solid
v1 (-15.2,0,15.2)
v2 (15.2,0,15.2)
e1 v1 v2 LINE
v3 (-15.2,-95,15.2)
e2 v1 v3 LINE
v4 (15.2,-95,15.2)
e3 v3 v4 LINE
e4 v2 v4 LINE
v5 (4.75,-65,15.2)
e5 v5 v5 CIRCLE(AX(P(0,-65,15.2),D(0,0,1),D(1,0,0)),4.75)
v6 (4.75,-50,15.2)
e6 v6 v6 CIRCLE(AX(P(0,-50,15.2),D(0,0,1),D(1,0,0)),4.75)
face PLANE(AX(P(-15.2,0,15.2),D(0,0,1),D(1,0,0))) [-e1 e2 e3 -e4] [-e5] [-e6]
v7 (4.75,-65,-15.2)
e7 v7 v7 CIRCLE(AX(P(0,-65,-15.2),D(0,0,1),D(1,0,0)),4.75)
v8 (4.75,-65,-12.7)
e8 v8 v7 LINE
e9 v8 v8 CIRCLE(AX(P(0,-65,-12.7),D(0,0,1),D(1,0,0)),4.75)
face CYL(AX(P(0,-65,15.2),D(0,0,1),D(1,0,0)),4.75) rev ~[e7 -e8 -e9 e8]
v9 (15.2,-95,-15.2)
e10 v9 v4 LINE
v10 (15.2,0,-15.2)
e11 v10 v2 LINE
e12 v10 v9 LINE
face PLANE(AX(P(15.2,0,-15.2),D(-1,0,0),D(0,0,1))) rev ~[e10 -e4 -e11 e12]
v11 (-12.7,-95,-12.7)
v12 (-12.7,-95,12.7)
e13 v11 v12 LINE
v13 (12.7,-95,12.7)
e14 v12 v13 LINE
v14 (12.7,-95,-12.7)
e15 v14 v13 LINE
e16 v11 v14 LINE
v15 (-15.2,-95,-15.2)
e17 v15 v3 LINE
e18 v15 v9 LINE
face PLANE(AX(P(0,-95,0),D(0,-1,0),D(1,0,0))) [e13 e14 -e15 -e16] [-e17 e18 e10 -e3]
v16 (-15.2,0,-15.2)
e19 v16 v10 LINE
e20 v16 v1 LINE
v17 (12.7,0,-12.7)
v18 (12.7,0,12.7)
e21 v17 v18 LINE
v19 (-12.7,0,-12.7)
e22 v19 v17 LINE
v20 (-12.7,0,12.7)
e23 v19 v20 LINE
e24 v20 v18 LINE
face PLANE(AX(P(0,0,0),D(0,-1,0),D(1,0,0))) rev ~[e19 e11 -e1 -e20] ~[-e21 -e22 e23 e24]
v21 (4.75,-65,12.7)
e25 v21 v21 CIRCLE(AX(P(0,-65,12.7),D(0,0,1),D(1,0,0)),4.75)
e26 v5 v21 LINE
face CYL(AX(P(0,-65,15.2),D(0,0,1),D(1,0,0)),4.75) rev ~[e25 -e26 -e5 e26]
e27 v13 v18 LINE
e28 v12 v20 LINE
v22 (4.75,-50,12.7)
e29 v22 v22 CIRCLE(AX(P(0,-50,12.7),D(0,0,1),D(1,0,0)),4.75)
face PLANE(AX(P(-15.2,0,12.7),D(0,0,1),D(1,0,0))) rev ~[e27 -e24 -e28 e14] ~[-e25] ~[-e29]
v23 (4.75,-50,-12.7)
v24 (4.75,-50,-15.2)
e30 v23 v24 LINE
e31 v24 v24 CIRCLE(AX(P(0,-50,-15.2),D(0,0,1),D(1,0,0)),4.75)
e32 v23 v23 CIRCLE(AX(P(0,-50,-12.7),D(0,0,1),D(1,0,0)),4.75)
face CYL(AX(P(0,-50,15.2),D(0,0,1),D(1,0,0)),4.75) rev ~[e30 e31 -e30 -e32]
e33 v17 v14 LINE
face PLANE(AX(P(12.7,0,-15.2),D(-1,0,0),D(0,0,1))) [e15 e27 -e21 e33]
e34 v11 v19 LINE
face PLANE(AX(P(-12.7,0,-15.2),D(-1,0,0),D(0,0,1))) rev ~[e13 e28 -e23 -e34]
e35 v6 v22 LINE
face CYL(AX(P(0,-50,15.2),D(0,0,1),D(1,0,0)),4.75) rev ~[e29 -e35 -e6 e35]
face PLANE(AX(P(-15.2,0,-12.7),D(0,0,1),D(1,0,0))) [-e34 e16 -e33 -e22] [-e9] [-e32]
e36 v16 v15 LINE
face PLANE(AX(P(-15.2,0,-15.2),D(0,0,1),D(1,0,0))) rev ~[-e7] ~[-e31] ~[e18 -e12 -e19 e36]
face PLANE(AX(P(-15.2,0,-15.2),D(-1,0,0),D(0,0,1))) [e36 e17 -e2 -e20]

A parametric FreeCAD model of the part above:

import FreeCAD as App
import Part
import Sketcher
from FreeCAD import Vector
Q = App.Units.Quantity


def faces_at(feature, points):
    """Names of the faces that lie closest to the given points."""
    faces = feature.Shape.Faces
    near = lambda p: min(range(len(faces)), key=lambda i: faces[i].distToShape(Part.Vertex(*p))[0])
    return sorted({f"Face{near(p) + 1}" for p in points})


def add_polygon(sketch, points):
    """Adds a closed chain of lines whose ends are joined by coincident constraints."""
    first, n = sketch.GeometryCount, len(points)
    for a, b in zip(points, points[1:] + points[:1]):
        sketch.addGeometry(Part.LineSegment(App.Vector(*a, 0), App.Vector(*b, 0)), False)
    for i in range(n):
        sketch.addConstraint(Sketcher.Constraint("Coincident", first + i, 2, first + (i + 1) % n, 1))

doc = App.newDocument("Part")
body = doc.addObject("PartDesign::Body", "Body")

# Sketch on XZ plane
sketch1 = doc.addObject("Sketcher::SketchObject", "Sketch")
body.addObject(sketch1)
sketch1.AttachmentSupport = (doc.XZ_Plane, [""])
sketch1.MapMode = "FlatFace"
add_polygon(sketch1, [(-15, 15), (-15, -15), (15, -15), (15, 15)])  # lines 0-3
sketch1.addConstraint(Sketcher.Constraint("Vertical", 0))
sketch1.addConstraint(Sketcher.Constraint("Horizontal", 1))
sketch1.addConstraint(Sketcher.Constraint("Vertical", 2))
sketch1.addConstraint(Sketcher.Constraint("Horizontal", 3))
sketch1.addConstraint(Sketcher.Constraint("Symmetric", 0, 2, 2, 2, -1, 1))
sketch1.addConstraint(Sketcher.Constraint("Equal", 3, 0))
sketch1.addConstraint(Sketcher.Constraint("DistanceX", 1, 1, 1, 2, Q("30.4 mm")))
pad1 = doc.addObject("PartDesign::Pad", "Pad")
body.addObject(pad1)
pad1.Profile = sketch1
pad1.Length = 95
doc.recompute()

thickness = doc.addObject("PartDesign::Thickness", "Thickness")
body.addObject(thickness)
thickness.Base = (pad1, faces_at(pad1, [(0, -95, 0), (0, 0, 0)]))
thickness.Value = 2.5
thickness.Reversed = True
thickness.Join = "Arc"

# Sketch on XY plane
sketch2 = doc.addObject("Sketcher::SketchObject", "Sketch001")
body.addObject(sketch2)
sketch2.AttachmentSupport = (doc.XY_Plane, [""])
sketch2.MapMode = "FlatFace"
sketch2.AttachmentOffset = App.Placement(Vector(0, 0, 15.2), App.Rotation())
sketch2.addGeometry(Part.Circle(Vector(0, -65, 0), Vector(0, 0, 1), 4.8), False)
sketch2.addGeometry(Part.Circle(Vector(0, -50, 0), Vector(0, 0, 1), 4.8), False)
sketch2.addConstraint(Sketcher.Constraint("Equal", 0, 1))
sketch2.addConstraint(Sketcher.Constraint("PointOnObject", 0, 3, -2))
sketch2.addConstraint(Sketcher.Constraint("PointOnObject", 1, 3, -2))
sketch2.addConstraint(Sketcher.Constraint("Diameter", 0, Q("9.5 mm")))
sketch2.addConstraint(Sketcher.Constraint("DistanceY", 0, 3, -1, 1, Q("65 mm")))
sketch2.addConstraint(Sketcher.Constraint("DistanceY", 1, 3, -1, 1, Q("50 mm")))
pocket1 = doc.addObject("PartDesign::Pocket", "Pocket")
body.addObject(pocket1)
pocket1.Profile = sketch2
pocket1.Length = 38.5

doc.recompute()
